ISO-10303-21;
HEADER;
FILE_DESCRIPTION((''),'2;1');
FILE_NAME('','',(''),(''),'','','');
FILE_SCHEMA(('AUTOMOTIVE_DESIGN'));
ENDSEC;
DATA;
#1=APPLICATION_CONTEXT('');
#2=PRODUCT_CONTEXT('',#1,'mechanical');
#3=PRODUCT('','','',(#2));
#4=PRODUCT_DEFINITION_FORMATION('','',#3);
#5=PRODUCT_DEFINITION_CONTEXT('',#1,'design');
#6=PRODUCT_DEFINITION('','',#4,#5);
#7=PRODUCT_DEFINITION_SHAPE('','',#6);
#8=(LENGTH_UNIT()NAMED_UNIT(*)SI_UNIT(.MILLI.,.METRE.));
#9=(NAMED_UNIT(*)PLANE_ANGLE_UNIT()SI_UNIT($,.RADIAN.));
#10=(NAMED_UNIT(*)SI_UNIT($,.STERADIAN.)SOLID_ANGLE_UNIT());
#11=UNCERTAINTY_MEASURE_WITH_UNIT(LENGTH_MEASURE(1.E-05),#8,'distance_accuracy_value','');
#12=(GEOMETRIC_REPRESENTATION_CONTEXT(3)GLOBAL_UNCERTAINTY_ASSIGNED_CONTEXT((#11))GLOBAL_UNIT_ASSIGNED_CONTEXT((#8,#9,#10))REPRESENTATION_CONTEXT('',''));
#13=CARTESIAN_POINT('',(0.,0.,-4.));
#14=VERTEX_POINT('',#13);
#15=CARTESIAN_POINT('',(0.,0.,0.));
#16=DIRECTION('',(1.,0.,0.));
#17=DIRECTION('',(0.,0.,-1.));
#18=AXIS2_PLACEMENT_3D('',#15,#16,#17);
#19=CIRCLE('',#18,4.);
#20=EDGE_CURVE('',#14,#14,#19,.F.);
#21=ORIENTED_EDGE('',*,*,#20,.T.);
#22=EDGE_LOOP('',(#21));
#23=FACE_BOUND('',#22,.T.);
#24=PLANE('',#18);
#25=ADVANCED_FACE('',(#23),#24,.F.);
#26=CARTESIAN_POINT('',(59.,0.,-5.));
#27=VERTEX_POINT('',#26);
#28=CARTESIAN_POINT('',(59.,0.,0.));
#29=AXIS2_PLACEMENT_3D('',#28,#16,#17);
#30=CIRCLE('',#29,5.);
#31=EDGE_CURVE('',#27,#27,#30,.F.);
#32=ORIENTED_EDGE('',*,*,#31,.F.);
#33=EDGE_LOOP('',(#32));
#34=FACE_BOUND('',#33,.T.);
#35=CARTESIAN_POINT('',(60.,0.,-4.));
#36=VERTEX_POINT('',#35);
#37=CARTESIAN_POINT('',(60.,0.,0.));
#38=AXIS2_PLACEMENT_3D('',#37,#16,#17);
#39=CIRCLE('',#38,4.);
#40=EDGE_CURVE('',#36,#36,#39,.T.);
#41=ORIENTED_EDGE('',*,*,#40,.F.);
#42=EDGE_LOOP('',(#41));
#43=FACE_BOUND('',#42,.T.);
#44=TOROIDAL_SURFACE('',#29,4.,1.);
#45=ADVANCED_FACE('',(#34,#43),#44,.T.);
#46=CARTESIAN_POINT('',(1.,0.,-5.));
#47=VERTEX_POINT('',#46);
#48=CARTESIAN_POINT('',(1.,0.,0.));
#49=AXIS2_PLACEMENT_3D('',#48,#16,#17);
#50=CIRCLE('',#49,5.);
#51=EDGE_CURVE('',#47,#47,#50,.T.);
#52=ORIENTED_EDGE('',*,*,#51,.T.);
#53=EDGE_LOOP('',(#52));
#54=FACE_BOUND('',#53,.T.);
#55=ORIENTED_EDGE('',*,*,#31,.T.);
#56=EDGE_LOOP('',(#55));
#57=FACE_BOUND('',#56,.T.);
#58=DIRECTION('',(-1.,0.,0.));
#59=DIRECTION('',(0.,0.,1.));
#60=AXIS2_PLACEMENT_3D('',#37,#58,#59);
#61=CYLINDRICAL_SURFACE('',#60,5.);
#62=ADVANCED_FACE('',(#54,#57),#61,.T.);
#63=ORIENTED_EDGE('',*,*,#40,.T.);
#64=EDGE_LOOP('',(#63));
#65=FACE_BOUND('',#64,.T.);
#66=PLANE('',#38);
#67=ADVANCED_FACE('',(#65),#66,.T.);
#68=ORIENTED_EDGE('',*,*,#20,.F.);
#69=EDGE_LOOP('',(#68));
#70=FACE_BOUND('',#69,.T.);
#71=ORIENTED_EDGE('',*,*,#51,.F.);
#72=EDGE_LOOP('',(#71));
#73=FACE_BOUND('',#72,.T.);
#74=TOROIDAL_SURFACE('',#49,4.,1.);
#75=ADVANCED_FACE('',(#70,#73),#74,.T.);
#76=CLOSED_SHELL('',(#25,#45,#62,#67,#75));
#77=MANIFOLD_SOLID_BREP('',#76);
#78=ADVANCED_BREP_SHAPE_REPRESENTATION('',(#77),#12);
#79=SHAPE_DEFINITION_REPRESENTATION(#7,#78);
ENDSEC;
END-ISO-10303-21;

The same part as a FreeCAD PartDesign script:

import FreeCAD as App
import Part
import Sketcher
from FreeCAD import Vector


def edges_at(feature, points):
    """Names of the edges that pass closest to the given points."""
    edges = feature.Shape.Edges
    near = lambda p: min(range(len(edges)), key=lambda i: edges[i].distToShape(Part.Vertex(*p))[0])
    return sorted({f"Edge{near(p) + 1}" for p in points})

doc = App.newDocument("Part")
body = doc.addObject("PartDesign::Body", "Body")

# Sketch on YZ plane
sketch1 = doc.addObject("Sketcher::SketchObject", "Sketch")
body.addObject(sketch1)
sketch1.AttachmentSupport = (doc.YZ_Plane, [""])
sketch1.MapMode = "FlatFace"
sketch1.addGeometry(Part.Circle(Vector(0, 0, 0), Vector(0, 0, 1), 5), False)
sketch1.addConstraint([
    Sketcher.Constraint("Coincident", 0, 3, -1, 1),
    Sketcher.Constraint("Diameter", 0, 10.0),
])
pad1 = doc.addObject("PartDesign::Pad", "Pad")
body.addObject(pad1)
pad1.Profile = sketch1
pad1.Length = 60
doc.recompute()

fillet = doc.addObject("PartDesign::Fillet", "Fillet")
body.addObject(fillet)
fillet.Base = (pad1, edges_at(pad1, [(0, 0, 5), (60, 0, 5)]))
fillet.Radius = 1

doc.recompute()
